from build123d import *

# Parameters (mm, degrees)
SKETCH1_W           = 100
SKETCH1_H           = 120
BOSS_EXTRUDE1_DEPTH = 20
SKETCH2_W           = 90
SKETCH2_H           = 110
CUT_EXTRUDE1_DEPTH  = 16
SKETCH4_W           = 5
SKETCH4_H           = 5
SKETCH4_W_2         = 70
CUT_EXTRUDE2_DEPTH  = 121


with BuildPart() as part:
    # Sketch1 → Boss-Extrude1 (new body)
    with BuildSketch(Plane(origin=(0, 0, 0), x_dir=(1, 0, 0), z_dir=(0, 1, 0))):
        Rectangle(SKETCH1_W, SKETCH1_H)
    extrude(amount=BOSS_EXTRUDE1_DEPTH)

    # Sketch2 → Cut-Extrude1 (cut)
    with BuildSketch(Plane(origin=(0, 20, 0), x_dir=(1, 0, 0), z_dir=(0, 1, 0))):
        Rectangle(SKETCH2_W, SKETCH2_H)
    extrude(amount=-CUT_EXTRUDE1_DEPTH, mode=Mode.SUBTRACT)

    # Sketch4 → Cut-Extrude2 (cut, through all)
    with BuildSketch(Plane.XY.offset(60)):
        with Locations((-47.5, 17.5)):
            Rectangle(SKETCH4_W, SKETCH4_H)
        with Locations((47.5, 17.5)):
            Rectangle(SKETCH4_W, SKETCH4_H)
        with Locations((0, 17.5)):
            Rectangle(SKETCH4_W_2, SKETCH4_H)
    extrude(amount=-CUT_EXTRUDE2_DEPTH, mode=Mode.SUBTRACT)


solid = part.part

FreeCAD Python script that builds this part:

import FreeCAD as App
import Part
import Sketcher

V = App.Vector


def add_polygon(sketch, points):
    """Adds a closed chain of lines whose ends are joined by coincident constraints."""
    first, n = sketch.GeometryCount, len(points)
    for a, b in zip(points, points[1:] + points[:1]):
        sketch.addGeometry(Part.LineSegment(App.Vector(*a, 0), App.Vector(*b, 0)), False)
    for i in range(n):
        sketch.addConstraint(Sketcher.Constraint("Coincident", first + i, 2, first + (i + 1) % n, 1))

doc = App.newDocument("Part")
body = doc.addObject("PartDesign::Body", "Body")

sketch1 = doc.addObject("Sketcher::SketchObject", "Sketch")
body.addObject(sketch1)
sketch1.AttachmentSupport = (doc.XZ_Plane, [""])
sketch1.MapMode = "FlatFace"
add_polygon(sketch1, [(-50, -60), (-50, 60), (50, 60), (50, -60)])
sketch1.addConstraint(Sketcher.Constraint("Vertical", 0))
sketch1.addConstraint(Sketcher.Constraint("Horizontal", 1))
sketch1.addConstraint(Sketcher.Constraint("Vertical", 2))
sketch1.addConstraint(Sketcher.Constraint("Horizontal", 3))
sketch1.addConstraint(Sketcher.Constraint("Symmetric", 0, 2, 2, 2, -1, 1))
sketch1.addConstraint(Sketcher.Constraint("DistanceX", 1, 1, 1, 2, 100.0))
sketch1.addConstraint(Sketcher.Constraint("DistanceY", 0, 1, 0, 2, 120.0))
pad1 = doc.addObject("PartDesign::Pad", "Pad")
body.addObject(pad1)
pad1.Profile = sketch1
pad1.Length = 20
pad1.Reversed = True

sketch2 = doc.addObject("Sketcher::SketchObject", "Sketch001")
body.addObject(sketch2)
sketch2.AttachmentSupport = (doc.XZ_Plane, [""])
sketch2.MapMode = "FlatFace"
sketch2.AttachmentOffset = App.Placement(V(0, 0, -20), App.Rotation())
add_polygon(sketch2, [(-45, -55), (-45, 55), (45, 55), (45, -55)])
sketch2.addConstraint(Sketcher.Constraint("Vertical", 0))
sketch2.addConstraint(Sketcher.Constraint("Horizontal", 1))
sketch2.addConstraint(Sketcher.Constraint("Vertical", 2))
sketch2.addConstraint(Sketcher.Constraint("Horizontal", 3))
sketch2.addConstraint(Sketcher.Constraint("Symmetric", 0, 2, 2, 2, -1, 1))
sketch2.addConstraint(Sketcher.Constraint("DistanceX", 1, 1, 1, 2, 90.0))
sketch2.addConstraint(Sketcher.Constraint("DistanceY", 0, 1, 0, 2, 110.0))
pocket1 = doc.addObject("PartDesign::Pocket", "Pocket")
body.addObject(pocket1)
pocket1.Profile = sketch2
pocket1.Length = 16
pocket1.Reversed = True

sketch3 = doc.addObject("Sketcher::SketchObject", "Sketch002")
body.addObject(sketch3)
sketch3.AttachmentSupport = (doc.XY_Plane, [""])
sketch3.MapMode = "FlatFace"
sketch3.AttachmentOffset = App.Placement(V(0, 0, 60), App.Rotation())
add_polygon(sketch3, [(-50, 20), (-50, 15), (-45, 15), (-45, 20)])
add_polygon(sketch3, [(45, 20), (45, 15), (50, 15), (50, 20)])
add_polygon(sketch3, [(-35, 20), (-35, 15), (35, 15), (35, 20)])
sketch3.addConstraint(Sketcher.Constraint("Vertical", 0))
sketch3.addConstraint(Sketcher.Constraint("Horizontal", 1))
sketch3.addConstraint(Sketcher.Constraint("Vertical", 2))
sketch3.addConstraint(Sketcher.Constraint("Horizontal", 3))
sketch3.addConstraint(Sketcher.Constraint("Vertical", 4))
sketch3.addConstraint(Sketcher.Constraint("Horizontal", 5))
sketch3.addConstraint(Sketcher.Constraint("Vertical", 6))
sketch3.addConstraint(Sketcher.Constraint("Horizontal", 7))
sketch3.addConstraint(Sketcher.Constraint("Vertical", 8))
sketch3.addConstraint(Sketcher.Constraint("Horizontal", 9))
sketch3.addConstraint(Sketcher.Constraint("Vertical", 10))
sketch3.addConstraint(Sketcher.Constraint("Horizontal", 11))
sketch3.addConstraint(Sketcher.Constraint("Symmetric", 1, 2, 4, 2, -2))
sketch3.addConstraint(Sketcher.Constraint("Symmetric", 3, 2, 6, 2, -2))
sketch3.addConstraint(Sketcher.Constraint("Horizontal", 5, 2, 8, 2))
sketch3.addConstraint(Sketcher.Constraint("Horizontal", 7, 2, 10, 2))
sketch3.addConstraint(Sketcher.Constraint("Equal", 7, 0))
sketch3.addConstraint(Sketcher.Constraint("DistanceX", 1, 1, 1, 2, 5.0))
sketch3.addConstraint(Sketcher.Constraint("DistanceX", 9, 1, 9, 2, 70.0))
sketch3.addConstraint(Sketcher.Constraint("DistanceX", 0, 2, -1, 1, 50.0))
sketch3.addConstraint(Sketcher.Constraint("DistanceY", -1, 1, 0, 2, 15.0))
sketch3.addConstraint(Sketcher.Constraint("DistanceX", 8, 2, -1, 1, 35.0))
pocket2 = doc.addObject("PartDesign::Pocket", "Pocket001")
body.addObject(pocket2)
pocket2.Profile = sketch3
pocket2.Type = "ThroughAll"

doc.recompute()
